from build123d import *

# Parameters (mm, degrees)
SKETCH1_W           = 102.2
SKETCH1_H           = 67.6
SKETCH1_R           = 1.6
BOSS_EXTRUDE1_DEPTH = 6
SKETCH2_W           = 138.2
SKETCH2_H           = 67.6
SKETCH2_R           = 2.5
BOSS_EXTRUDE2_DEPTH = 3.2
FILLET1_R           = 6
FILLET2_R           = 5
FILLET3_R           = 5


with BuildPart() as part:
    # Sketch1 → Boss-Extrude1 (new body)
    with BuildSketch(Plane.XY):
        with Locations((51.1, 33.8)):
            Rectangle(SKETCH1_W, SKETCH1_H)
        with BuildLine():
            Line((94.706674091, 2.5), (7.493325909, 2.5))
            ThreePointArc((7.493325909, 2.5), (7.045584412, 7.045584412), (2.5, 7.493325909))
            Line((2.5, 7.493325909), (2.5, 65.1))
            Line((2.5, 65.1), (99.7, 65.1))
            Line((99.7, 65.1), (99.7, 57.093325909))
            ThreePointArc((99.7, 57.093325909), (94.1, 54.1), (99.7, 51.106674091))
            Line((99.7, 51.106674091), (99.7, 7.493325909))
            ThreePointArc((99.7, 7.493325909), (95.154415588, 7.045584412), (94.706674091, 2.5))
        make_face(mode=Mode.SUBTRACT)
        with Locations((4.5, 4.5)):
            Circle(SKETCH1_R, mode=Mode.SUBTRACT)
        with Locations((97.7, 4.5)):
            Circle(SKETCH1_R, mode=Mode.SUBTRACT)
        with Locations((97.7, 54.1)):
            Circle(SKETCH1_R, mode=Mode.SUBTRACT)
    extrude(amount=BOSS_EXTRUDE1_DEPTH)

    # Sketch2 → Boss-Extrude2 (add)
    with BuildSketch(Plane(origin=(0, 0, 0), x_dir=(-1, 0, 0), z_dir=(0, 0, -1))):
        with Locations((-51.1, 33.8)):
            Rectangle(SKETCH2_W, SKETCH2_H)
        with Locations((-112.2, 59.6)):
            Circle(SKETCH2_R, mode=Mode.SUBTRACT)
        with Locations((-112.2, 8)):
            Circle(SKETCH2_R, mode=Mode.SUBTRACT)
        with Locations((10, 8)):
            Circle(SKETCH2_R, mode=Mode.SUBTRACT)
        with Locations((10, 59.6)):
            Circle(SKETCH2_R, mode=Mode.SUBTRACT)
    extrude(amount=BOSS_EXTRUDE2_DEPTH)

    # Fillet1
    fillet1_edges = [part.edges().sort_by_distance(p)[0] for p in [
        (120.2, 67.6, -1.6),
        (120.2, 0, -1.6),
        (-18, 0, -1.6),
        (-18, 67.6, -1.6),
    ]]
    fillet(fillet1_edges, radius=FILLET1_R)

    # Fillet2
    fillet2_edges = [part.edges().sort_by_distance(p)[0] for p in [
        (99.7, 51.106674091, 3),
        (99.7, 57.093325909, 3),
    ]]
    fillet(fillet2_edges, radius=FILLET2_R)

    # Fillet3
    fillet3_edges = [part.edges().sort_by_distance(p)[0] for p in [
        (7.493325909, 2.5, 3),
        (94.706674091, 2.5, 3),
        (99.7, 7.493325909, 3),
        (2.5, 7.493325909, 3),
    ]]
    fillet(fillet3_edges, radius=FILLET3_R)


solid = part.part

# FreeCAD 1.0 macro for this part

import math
import FreeCAD as App
import Part
import Sketcher

V = App.Vector


def edges_at(feature, points):
    """Names of the edges that pass closest to the given points."""
    edges = feature.Shape.Edges
    near = lambda p: min(range(len(edges)), key=lambda i: edges[i].distToShape(Part.Vertex(*p))[0])
    return sorted({f"Edge{near(p) + 1}" for p in points})


def add_polygon(sketch, points):
    """Adds a closed chain of lines whose ends are joined by coincident constraints."""
    first, n = sketch.GeometryCount, len(points)
    for a, b in zip(points, points[1:] + points[:1]):
        sketch.addGeometry(Part.LineSegment(App.Vector(*a, 0), App.Vector(*b, 0)), False)
    for i in range(n):
        sketch.addConstraint(Sketcher.Constraint("Coincident", first + i, 2, first + (i + 1) % n, 1))

doc = App.newDocument("Part")
body = doc.addObject("PartDesign::Body", "Body")

# Sketch on XY plane
sketch1 = doc.addObject("Sketcher::SketchObject", "Sketch")
body.addObject(sketch1)
sketch1.AttachmentSupport = (doc.XY_Plane, [""])
sketch1.MapMode = "FlatFace"
add_polygon(sketch1, [(0, 67.6), (0, 0), (102.2, 0), (102.2, 67.6)])  # lines 0-3
sketch1.addGeometry(Part.Circle(V(4.5, 4.5, 0), V(0, 0, 1), 1.6), False)  # 4
sketch1.addGeometry(Part.Circle(V(97.7, 4.5, 0), V(0, 0, 1), 1.6), False)  # 5
sketch1.addGeometry(Part.ArcOfCircle(Part.Circle(V(97.7, 4.5, 0), V(0, 0, 1), 3.6), math.radians(56.251011), math.radians(213.748989)), False)  # 6
sketch1.addGeometry(Part.LineSegment(V(94.706674, 2.5, 0), V(7.493326, 2.5, 0)), False)  # 7
sketch1.addGeometry(Part.ArcOfCircle(Part.Circle(V(4.5, 4.5, 0), V(0, 0, 1), 3.6), math.radians(-33.748989), math.radians(123.748989)), False)  # 8
sketch1.addGeometry(Part.LineSegment(V(2.5, 7.493326, 0), V(2.5, 65.1, 0)), False)  # 9
sketch1.addGeometry(Part.LineSegment(V(2.5, 65.1, 0), V(99.7, 65.1, 0)), False)  # 10
sketch1.addGeometry(Part.LineSegment(V(99.7, 65.1, 0), V(99.7, 57.093326, 0)), False)  # 11
sketch1.addGeometry(Part.ArcOfCircle(Part.Circle(V(97.7, 54.1, 0), V(0, 0, 1), 3.6), math.radians(56.251011), math.radians(303.748989)), False)  # 12
sketch1.addGeometry(Part.LineSegment(V(99.7, 51.106674, 0), V(99.7, 7.493326, 0)), False)  # 13
sketch1.addGeometry(Part.Circle(V(97.7, 54.1, 0), V(0, 0, 1), 1.6), False)  # 14
sketch1.addConstraint([
    Sketcher.Constraint("Coincident", 6, 2, 7, 1),
    Sketcher.Constraint("Coincident", 7, 2, 8, 1),
    Sketcher.Constraint("Coincident", 8, 2, 9, 1),
    Sketcher.Constraint("Coincident", 9, 2, 10, 1),
    Sketcher.Constraint("Coincident", 10, 2, 11, 1),
    Sketcher.Constraint("Coincident", 11, 2, 12, 1),
    Sketcher.Constraint("Coincident", 12, 2, 13, 1),
    Sketcher.Constraint("Coincident", 13, 2, 6, 1),
    Sketcher.Constraint("Vertical", 0),
    Sketcher.Constraint("Horizontal", 1),
    Sketcher.Constraint("Vertical", 2),
    Sketcher.Constraint("Horizontal", 3),
    Sketcher.Constraint("Horizontal", 7),
    Sketcher.Constraint("Vertical", 9),
    Sketcher.Constraint("Horizontal", 10),
    Sketcher.Constraint("Vertical", 11),
    Sketcher.Constraint("Vertical", 13),
    Sketcher.Constraint("Coincident", 0, 2, -1, 1),
    Sketcher.Constraint("Coincident", 6, 3, 5, 3),
    Sketcher.Constraint("Coincident", 8, 3, 4, 3),
    Sketcher.Constraint("Coincident", 14, 3, 12, 3),
    Sketcher.Constraint("Equal", 4, 5),
    Sketcher.Constraint("Equal", 6, 8),
    Sketcher.Constraint("Equal", 8, 12),
    Sketcher.Constraint("Equal", 5, 14),
    Sketcher.Constraint("Horizontal", 4, 3, 5, 3),
    Sketcher.Constraint("Horizontal", 8, 2, 13, 2),
    Sketcher.Constraint("Vertical", 6, 3, 12, 3),
    Sketcher.Constraint("Vertical", 11, 2, 12, 2),
    Sketcher.Constraint("Diameter", 4, 3.2),
    Sketcher.Constraint("Radius", 6, 3.6),
    Sketcher.Constraint("DistanceX", 1, 1, 1, 2, 102.2),
    Sketcher.Constraint("DistanceX", 10, 1, 10, 2, 97.2),
    Sketcher.Constraint("DistanceY", 0, 2, 0, 1, 67.6),
    Sketcher.Constraint("DistanceY", 6, 2, 5, 3, 2.0),
    Sketcher.Constraint("DistanceX", 8, 2, 4, 3, 2.0),
    Sketcher.Constraint("DistanceY", 12, 3, 10, 2, 11.0),
    Sketcher.Constraint("DistanceX", -1, 1, 4, 3, 4.5),
    Sketcher.Constraint("DistanceY", -1, 1, 4, 3, 4.5),
    Sketcher.Constraint("DistanceY", -1, 1, 12, 3, 54.1),
])
pad1 = doc.addObject("PartDesign::Pad", "Pad")
body.addObject(pad1)
pad1.Profile = sketch1
pad1.Length = 6

# Sketch on XY plane
sketch2 = doc.addObject("Sketcher::SketchObject", "Sketch001")
body.addObject(sketch2)
sketch2.AttachmentSupport = (doc.XY_Plane, [""])
sketch2.MapMode = "FlatFace"
add_polygon(sketch2, [(120.2, 67.6), (120.2, 0), (-18, 0), (-18, 67.6)])  # lines 0-3
sketch2.addGeometry(Part.Circle(V(112.2, 8, 0), V(0, 0, 1), 2.5), False)  # 4
sketch2.addGeometry(Part.Circle(V(-10, 8, 0), V(0, 0, 1), 2.5), False)  # 5
sketch2.addGeometry(Part.Circle(V(112.2, 59.6, 0), V(0, 0, 1), 2.5), False)  # 6
sketch2.addGeometry(Part.Circle(V(-10, 59.6, 0), V(0, 0, 1), 2.5), False)  # 7
sketch2.addConstraint([
    Sketcher.Constraint("Vertical", 0),
    Sketcher.Constraint("Horizontal", 1),
    Sketcher.Constraint("Vertical", 2),
    Sketcher.Constraint("Horizontal", 3),
    Sketcher.Constraint("Equal", 4, 5),
    Sketcher.Constraint("Equal", 5, 6),
    Sketcher.Constraint("Equal", 6, 7),
    Sketcher.Constraint("PointOnObject", 0, 2, -1),
    Sketcher.Constraint("Horizontal", 4, 3, 5, 3),
    Sketcher.Constraint("Horizontal", 6, 3, 7, 3),
    Sketcher.Constraint("Vertical", 4, 3, 6, 3),
    Sketcher.Constraint("Vertical", 5, 3, 7, 3),
    Sketcher.Constraint("Diameter", 4, 5.0),
    Sketcher.Constraint("DistanceX", 1, 2, 1, 1, 138.2),
    Sketcher.Constraint("DistanceY", 0, 2, 0, 1, 67.6),
    Sketcher.Constraint("DistanceY", -1, 1, 4, 3, 8.0),
    Sketcher.Constraint("DistanceX", 5, 3, -1, 1, 10.0),
    Sketcher.Constraint("DistanceX", 1, 2, -1, 1, 18.0),
    Sketcher.Constraint("DistanceX", 4, 3, 0, 2, 8.0),
    Sketcher.Constraint("DistanceY", 7, 3, 2, 2, 8.0),
])
pad2 = doc.addObject("PartDesign::Pad", "Pad001")
body.addObject(pad2)
pad2.Profile = sketch2
pad2.Length = 3.2
pad2.Reversed = True
doc.recompute()

fillet = doc.addObject("PartDesign::Fillet", "Fillet")
body.addObject(fillet)
fillet.Base = (pad2, edges_at(pad2, [
    (120.2, 67.6, -1.6),
    (120.2, 0, -1.6),
    (-18, 0, -1.6),
    (-18, 67.6, -1.6),
]))
fillet.Radius = 6
doc.recompute()

fillet2 = doc.addObject("PartDesign::Fillet", "Fillet001")
body.addObject(fillet2)
fillet2.Base = (fillet, edges_at(fillet, [(99.7, 51.107, 3), (99.7, 57.093, 3)]))
fillet2.Radius = 5
doc.recompute()

fillet3 = doc.addObject("PartDesign::Fillet", "Fillet002")
body.addObject(fillet3)
fillet3.Base = (fillet2, edges_at(fillet2, [
    (7.493, 2.5, 3),
    (94.707, 2.5, 3),
    (99.7, 7.493, 3),
    (2.5, 7.493, 3),
]))
fillet3.Radius = 5

doc.recompute()
